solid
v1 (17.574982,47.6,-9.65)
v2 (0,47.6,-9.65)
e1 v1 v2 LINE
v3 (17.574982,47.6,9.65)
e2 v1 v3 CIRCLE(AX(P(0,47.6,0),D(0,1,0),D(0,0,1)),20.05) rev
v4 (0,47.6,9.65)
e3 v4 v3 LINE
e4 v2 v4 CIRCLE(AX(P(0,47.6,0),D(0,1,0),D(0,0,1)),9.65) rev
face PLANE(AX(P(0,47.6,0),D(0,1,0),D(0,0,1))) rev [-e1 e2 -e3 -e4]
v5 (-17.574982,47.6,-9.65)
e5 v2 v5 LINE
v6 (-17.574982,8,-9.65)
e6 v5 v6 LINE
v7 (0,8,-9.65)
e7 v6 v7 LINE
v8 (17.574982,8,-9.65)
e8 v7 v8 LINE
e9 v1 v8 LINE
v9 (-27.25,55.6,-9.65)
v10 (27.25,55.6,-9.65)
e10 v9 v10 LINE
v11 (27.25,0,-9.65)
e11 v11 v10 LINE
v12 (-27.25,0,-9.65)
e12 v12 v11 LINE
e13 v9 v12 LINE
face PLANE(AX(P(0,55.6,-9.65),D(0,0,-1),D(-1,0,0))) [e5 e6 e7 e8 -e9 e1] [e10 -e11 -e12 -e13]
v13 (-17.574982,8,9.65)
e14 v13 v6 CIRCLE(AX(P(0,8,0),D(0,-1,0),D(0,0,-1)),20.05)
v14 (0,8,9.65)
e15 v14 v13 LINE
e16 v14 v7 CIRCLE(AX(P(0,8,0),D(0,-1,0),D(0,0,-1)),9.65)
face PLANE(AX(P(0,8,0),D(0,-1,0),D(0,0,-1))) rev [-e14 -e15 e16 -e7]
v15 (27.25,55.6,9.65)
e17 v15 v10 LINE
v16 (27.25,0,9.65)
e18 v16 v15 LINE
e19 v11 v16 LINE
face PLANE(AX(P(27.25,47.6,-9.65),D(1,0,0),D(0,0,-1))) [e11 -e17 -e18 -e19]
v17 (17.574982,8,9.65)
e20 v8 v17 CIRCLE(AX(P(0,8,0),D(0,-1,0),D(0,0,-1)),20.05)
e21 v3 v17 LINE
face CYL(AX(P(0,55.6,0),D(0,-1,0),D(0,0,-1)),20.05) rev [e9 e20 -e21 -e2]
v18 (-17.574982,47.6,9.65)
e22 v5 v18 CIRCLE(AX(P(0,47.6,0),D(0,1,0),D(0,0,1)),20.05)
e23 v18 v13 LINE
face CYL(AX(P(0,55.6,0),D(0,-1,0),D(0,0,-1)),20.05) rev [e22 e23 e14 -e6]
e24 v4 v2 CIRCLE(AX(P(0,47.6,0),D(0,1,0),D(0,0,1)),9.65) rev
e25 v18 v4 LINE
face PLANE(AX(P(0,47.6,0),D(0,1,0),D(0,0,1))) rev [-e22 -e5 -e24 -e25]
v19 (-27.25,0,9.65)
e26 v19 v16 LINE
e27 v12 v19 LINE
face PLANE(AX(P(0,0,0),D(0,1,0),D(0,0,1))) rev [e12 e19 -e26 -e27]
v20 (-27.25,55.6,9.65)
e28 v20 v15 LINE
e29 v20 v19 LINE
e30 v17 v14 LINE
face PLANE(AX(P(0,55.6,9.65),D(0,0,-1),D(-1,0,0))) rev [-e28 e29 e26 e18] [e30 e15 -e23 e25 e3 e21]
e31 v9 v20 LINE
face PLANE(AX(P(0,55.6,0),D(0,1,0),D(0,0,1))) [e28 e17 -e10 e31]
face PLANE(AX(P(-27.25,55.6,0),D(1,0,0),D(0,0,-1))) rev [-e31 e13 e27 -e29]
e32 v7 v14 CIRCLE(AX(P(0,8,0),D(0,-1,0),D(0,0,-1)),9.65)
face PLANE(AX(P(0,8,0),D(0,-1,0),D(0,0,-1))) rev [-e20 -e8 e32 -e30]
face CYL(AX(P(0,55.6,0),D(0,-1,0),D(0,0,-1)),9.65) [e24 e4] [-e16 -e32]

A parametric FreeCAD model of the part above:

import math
import FreeCAD as App
import Part
import Sketcher
Q = App.Units.Quantity


def add_polygon(sketch, points):
    """Adds a closed chain of lines whose ends are joined by coincident constraints."""
    first, n = sketch.GeometryCount, len(points)
    for a, b in zip(points, points[1:] + points[:1]):
        sketch.addGeometry(Part.LineSegment(App.Vector(*a, 0), App.Vector(*b, 0)), False)
    for i in range(n):
        sketch.addConstraint(Sketcher.Constraint("Coincident", first + i, 2, first + (i + 1) % n, 1))

doc = App.newDocument("Part")
params = doc.addObject("Spreadsheet::Sheet", "Params")
for row, (alias, value) in enumerate([
    ("sketch1_radius", "20.05 mm"),
    ("sketch1_height", "19.3 mm"),
    ("pad1_length", "55.6 mm"),
    ("sketch2_diameter", "19.3 mm"),
    ("pad2_length", "55.6 mm"),
    ("sketch3_radius", "20.05 mm"),
    ("sketch3_height", "19.3 mm"),
    ("pad3_length", "55.6 mm"),
    ("sketch4_width", "54.5 mm"),
    ("sketch4_height", "19.3 mm"),
    ("pad4_length", "8 mm"),
    ("sketch5_width", "54.5 mm"),
    ("sketch5_height", "19.3 mm"),
    ("pad5_length", "8 mm"),
], start=1):
    params.set(f"A{row}", alias)
    params.set(f"B{row}", "=" + value)
    params.setAlias(f"B{row}", alias)

body = doc.addObject("PartDesign::Body", "Body")

sketch1 = body.newObject("Sketcher::SketchObject", "Sketch")
sketch1.AttachmentSupport = (doc.getObject("XZ_Plane"), [""])
sketch1.MapMode = "FlatFace"
sketch1.addGeometry([
    Part.LineSegment(App.Vector(-18, -10, 0), App.Vector(-27, -10, 0)),
    Part.LineSegment(App.Vector(-27, -10, 0), App.Vector(-27, 10, 0)),
    Part.LineSegment(App.Vector(-27, 10, 0), App.Vector(-18, 10, 0)),
    Part.ArcOfCircle(Part.Circle(App.Vector(0, 0, 0), App.Vector(0, 0, 1), 20), math.radians(151), math.radians(209)),
], False)
sketch1.addConstraint([
    Sketcher.Constraint("Coincident", 0, 2, 1, 1),
    Sketcher.Constraint("Coincident", 1, 2, 2, 1),
    Sketcher.Constraint("Coincident", 2, 2, 3, 1),
    Sketcher.Constraint("Coincident", 3, 2, 0, 1),
    Sketcher.Constraint("Horizontal", 0),
    Sketcher.Constraint("Vertical", 1),
    Sketcher.Constraint("Horizontal", 2),
    Sketcher.Constraint("Coincident", 3, 3, -1, 1),
    Sketcher.Constraint("Vertical", 2, 2, 3, 2),
    Sketcher.Constraint("Radius", 3, Q("20.05 mm")),
    Sketcher.Constraint("DistanceY", 1, 1, 1, 2, Q("19.3 mm")),
    Sketcher.Constraint("DistanceX", 0, 2, -1, 1, Q("27.25 mm")),
])
sketch1.setExpression("Constraints[9]", "Params.sketch1_radius")
sketch1.setExpression("Constraints[10]", "Params.sketch1_height")
pad1 = body.newObject("PartDesign::Pad", "Pad")
pad1.Profile = sketch1
pad1.setExpression("Length", "Params.pad1_length")
pad1.Reversed = True
body2 = doc.addObject("PartDesign::Body", "Body001")

sketch2 = body2.newObject("Sketcher::SketchObject", "Sketch001")
sketch2.AttachmentSupport = (doc.getObject("XZ_Plane001"), [""])
sketch2.MapMode = "FlatFace"
sketch2.addGeometry(Part.Circle(App.Vector(0, 0, 0), App.Vector(0, 0, 1), 10), False)
sketch2.addConstraint([
    Sketcher.Constraint("Coincident", 0, 3, -1, 1),
    Sketcher.Constraint("Diameter", 0, Q("19.3 mm")),
])
sketch2.setExpression("Constraints[1]", "Params.sketch2_diameter")
pad2 = body2.newObject("PartDesign::Pad", "Pad001")
pad2.Profile = sketch2
pad2.setExpression("Length", "Params.pad2_length")
pad2.Reversed = True
body3 = doc.addObject("PartDesign::Body", "Body002")

sketch3 = body3.newObject("Sketcher::SketchObject", "Sketch002")
sketch3.AttachmentSupport = (doc.getObject("XZ_Plane002"), [""])
sketch3.MapMode = "FlatFace"
sketch3.addGeometry([
    Part.LineSegment(App.Vector(27, -10, 0), App.Vector(18, -10, 0)),
    Part.ArcOfCircle(Part.Circle(App.Vector(0, 0, 0), App.Vector(0, 0, 1), 20), math.radians(-29), math.radians(0)),
    Part.ArcOfCircle(Part.Circle(App.Vector(0, 0, 0), App.Vector(0, 0, 1), 20), math.radians(0), math.radians(29)),
    Part.LineSegment(App.Vector(18, 10, 0), App.Vector(27, 10, 0)),
    Part.LineSegment(App.Vector(27, 10, 0), App.Vector(27, -10, 0)),
], False)
sketch3.addConstraint([
    Sketcher.Constraint("Coincident", 0, 2, 1, 1),
    Sketcher.Constraint("Tangent", 1, 2, 2, 1),
    Sketcher.Constraint("Coincident", 2, 2, 3, 1),
    Sketcher.Constraint("Coincident", 3, 2, 4, 1),
    Sketcher.Constraint("Coincident", 4, 2, 0, 1),
    Sketcher.Constraint("Horizontal", 0),
    Sketcher.Constraint("Horizontal", 3),
    Sketcher.Constraint("Vertical", 4),
    Sketcher.Constraint("Coincident", 1, 3, -1, 1),
    Sketcher.Constraint("Equal", 1, 2),
    Sketcher.Constraint("PointOnObject", 1, 2, -1),
    Sketcher.Constraint("Vertical", 0, 2, 2, 2),
    Sketcher.Constraint("Radius", 1, Q("20.05 mm")),
    Sketcher.Constraint("DistanceY", 4, 2, 4, 1, Q("19.3 mm")),
    Sketcher.Constraint("DistanceX", 1, 2, 3, 2, Q("7.2 mm")),
])
sketch3.setExpression("Constraints[12]", "Params.sketch3_radius")
sketch3.setExpression("Constraints[13]", "Params.sketch3_height")
pad3 = body3.newObject("PartDesign::Pad", "Pad002")
pad3.Profile = sketch3
pad3.setExpression("Length", "Params.pad3_length")
pad3.Reversed = True
body.AllowCompound = True
doc.recompute()

boolean = body.newObject("PartDesign::Boolean", "Boolean")
boolean.Type = "Fuse"
boolean.addObjects([body2])
doc.recompute()

boolean2 = body.newObject("PartDesign::Boolean", "Boolean001")
boolean2.Type = "Fuse"
boolean2.addObjects([body3])

sketch4 = body.newObject("Sketcher::SketchObject", "Sketch003")
sketch4.AttachmentSupport = (doc.getObject("XZ_Plane"), [""])
sketch4.MapMode = "FlatFace"
sketch4.AttachmentOffset = App.Placement(App.Vector(0, 0, -55.6), App.Rotation())
add_polygon(sketch4, [(-27, -10), (-27, 10), (27, 10), (27, -10)])
sketch4.addConstraint([
    Sketcher.Constraint("Vertical", 0),
    Sketcher.Constraint("Horizontal", 1),
    Sketcher.Constraint("Vertical", 2),
    Sketcher.Constraint("Horizontal", 3),
    Sketcher.Constraint("Symmetric", 0, 2, 2, 2, -1, 1),
    Sketcher.Constraint("DistanceX", 1, 1, 1, 2, Q("54.5 mm")),
    Sketcher.Constraint("DistanceY", 0, 1, 0, 2, Q("19.3 mm")),
])
sketch4.setExpression("Constraints[9]", "Params.sketch4_width")
sketch4.setExpression("Constraints[10]", "Params.sketch4_height")
pad4 = body.newObject("PartDesign::Pad", "Pad003")
pad4.Profile = sketch4
pad4.setExpression("Length", "Params.pad4_length")

sketch5 = body.newObject("Sketcher::SketchObject", "Sketch004")
sketch5.AttachmentSupport = (doc.getObject("XZ_Plane"), [""])
sketch5.MapMode = "FlatFace"
add_polygon(sketch5, [(-27, 10), (-27, -10), (27, -10), (27, 10)])
sketch5.addConstraint([
    Sketcher.Constraint("Vertical", 0),
    Sketcher.Constraint("Horizontal", 1),
    Sketcher.Constraint("Vertical", 2),
    Sketcher.Constraint("Horizontal", 3),
    Sketcher.Constraint("Symmetric", 0, 2, 2, 2, -1, 1),
    Sketcher.Constraint("DistanceX", 1, 1, 1, 2, Q("54.5 mm")),
    Sketcher.Constraint("DistanceY", 0, 2, 0, 1, Q("19.3 mm")),
])
sketch5.setExpression("Constraints[9]", "Params.sketch5_width")
sketch5.setExpression("Constraints[10]", "Params.sketch5_height")
pad5 = body.newObject("PartDesign::Pad", "Pad004")
pad5.Profile = sketch5
pad5.setExpression("Length", "Params.pad5_length")
pad5.Reversed = True

doc.recompute()
